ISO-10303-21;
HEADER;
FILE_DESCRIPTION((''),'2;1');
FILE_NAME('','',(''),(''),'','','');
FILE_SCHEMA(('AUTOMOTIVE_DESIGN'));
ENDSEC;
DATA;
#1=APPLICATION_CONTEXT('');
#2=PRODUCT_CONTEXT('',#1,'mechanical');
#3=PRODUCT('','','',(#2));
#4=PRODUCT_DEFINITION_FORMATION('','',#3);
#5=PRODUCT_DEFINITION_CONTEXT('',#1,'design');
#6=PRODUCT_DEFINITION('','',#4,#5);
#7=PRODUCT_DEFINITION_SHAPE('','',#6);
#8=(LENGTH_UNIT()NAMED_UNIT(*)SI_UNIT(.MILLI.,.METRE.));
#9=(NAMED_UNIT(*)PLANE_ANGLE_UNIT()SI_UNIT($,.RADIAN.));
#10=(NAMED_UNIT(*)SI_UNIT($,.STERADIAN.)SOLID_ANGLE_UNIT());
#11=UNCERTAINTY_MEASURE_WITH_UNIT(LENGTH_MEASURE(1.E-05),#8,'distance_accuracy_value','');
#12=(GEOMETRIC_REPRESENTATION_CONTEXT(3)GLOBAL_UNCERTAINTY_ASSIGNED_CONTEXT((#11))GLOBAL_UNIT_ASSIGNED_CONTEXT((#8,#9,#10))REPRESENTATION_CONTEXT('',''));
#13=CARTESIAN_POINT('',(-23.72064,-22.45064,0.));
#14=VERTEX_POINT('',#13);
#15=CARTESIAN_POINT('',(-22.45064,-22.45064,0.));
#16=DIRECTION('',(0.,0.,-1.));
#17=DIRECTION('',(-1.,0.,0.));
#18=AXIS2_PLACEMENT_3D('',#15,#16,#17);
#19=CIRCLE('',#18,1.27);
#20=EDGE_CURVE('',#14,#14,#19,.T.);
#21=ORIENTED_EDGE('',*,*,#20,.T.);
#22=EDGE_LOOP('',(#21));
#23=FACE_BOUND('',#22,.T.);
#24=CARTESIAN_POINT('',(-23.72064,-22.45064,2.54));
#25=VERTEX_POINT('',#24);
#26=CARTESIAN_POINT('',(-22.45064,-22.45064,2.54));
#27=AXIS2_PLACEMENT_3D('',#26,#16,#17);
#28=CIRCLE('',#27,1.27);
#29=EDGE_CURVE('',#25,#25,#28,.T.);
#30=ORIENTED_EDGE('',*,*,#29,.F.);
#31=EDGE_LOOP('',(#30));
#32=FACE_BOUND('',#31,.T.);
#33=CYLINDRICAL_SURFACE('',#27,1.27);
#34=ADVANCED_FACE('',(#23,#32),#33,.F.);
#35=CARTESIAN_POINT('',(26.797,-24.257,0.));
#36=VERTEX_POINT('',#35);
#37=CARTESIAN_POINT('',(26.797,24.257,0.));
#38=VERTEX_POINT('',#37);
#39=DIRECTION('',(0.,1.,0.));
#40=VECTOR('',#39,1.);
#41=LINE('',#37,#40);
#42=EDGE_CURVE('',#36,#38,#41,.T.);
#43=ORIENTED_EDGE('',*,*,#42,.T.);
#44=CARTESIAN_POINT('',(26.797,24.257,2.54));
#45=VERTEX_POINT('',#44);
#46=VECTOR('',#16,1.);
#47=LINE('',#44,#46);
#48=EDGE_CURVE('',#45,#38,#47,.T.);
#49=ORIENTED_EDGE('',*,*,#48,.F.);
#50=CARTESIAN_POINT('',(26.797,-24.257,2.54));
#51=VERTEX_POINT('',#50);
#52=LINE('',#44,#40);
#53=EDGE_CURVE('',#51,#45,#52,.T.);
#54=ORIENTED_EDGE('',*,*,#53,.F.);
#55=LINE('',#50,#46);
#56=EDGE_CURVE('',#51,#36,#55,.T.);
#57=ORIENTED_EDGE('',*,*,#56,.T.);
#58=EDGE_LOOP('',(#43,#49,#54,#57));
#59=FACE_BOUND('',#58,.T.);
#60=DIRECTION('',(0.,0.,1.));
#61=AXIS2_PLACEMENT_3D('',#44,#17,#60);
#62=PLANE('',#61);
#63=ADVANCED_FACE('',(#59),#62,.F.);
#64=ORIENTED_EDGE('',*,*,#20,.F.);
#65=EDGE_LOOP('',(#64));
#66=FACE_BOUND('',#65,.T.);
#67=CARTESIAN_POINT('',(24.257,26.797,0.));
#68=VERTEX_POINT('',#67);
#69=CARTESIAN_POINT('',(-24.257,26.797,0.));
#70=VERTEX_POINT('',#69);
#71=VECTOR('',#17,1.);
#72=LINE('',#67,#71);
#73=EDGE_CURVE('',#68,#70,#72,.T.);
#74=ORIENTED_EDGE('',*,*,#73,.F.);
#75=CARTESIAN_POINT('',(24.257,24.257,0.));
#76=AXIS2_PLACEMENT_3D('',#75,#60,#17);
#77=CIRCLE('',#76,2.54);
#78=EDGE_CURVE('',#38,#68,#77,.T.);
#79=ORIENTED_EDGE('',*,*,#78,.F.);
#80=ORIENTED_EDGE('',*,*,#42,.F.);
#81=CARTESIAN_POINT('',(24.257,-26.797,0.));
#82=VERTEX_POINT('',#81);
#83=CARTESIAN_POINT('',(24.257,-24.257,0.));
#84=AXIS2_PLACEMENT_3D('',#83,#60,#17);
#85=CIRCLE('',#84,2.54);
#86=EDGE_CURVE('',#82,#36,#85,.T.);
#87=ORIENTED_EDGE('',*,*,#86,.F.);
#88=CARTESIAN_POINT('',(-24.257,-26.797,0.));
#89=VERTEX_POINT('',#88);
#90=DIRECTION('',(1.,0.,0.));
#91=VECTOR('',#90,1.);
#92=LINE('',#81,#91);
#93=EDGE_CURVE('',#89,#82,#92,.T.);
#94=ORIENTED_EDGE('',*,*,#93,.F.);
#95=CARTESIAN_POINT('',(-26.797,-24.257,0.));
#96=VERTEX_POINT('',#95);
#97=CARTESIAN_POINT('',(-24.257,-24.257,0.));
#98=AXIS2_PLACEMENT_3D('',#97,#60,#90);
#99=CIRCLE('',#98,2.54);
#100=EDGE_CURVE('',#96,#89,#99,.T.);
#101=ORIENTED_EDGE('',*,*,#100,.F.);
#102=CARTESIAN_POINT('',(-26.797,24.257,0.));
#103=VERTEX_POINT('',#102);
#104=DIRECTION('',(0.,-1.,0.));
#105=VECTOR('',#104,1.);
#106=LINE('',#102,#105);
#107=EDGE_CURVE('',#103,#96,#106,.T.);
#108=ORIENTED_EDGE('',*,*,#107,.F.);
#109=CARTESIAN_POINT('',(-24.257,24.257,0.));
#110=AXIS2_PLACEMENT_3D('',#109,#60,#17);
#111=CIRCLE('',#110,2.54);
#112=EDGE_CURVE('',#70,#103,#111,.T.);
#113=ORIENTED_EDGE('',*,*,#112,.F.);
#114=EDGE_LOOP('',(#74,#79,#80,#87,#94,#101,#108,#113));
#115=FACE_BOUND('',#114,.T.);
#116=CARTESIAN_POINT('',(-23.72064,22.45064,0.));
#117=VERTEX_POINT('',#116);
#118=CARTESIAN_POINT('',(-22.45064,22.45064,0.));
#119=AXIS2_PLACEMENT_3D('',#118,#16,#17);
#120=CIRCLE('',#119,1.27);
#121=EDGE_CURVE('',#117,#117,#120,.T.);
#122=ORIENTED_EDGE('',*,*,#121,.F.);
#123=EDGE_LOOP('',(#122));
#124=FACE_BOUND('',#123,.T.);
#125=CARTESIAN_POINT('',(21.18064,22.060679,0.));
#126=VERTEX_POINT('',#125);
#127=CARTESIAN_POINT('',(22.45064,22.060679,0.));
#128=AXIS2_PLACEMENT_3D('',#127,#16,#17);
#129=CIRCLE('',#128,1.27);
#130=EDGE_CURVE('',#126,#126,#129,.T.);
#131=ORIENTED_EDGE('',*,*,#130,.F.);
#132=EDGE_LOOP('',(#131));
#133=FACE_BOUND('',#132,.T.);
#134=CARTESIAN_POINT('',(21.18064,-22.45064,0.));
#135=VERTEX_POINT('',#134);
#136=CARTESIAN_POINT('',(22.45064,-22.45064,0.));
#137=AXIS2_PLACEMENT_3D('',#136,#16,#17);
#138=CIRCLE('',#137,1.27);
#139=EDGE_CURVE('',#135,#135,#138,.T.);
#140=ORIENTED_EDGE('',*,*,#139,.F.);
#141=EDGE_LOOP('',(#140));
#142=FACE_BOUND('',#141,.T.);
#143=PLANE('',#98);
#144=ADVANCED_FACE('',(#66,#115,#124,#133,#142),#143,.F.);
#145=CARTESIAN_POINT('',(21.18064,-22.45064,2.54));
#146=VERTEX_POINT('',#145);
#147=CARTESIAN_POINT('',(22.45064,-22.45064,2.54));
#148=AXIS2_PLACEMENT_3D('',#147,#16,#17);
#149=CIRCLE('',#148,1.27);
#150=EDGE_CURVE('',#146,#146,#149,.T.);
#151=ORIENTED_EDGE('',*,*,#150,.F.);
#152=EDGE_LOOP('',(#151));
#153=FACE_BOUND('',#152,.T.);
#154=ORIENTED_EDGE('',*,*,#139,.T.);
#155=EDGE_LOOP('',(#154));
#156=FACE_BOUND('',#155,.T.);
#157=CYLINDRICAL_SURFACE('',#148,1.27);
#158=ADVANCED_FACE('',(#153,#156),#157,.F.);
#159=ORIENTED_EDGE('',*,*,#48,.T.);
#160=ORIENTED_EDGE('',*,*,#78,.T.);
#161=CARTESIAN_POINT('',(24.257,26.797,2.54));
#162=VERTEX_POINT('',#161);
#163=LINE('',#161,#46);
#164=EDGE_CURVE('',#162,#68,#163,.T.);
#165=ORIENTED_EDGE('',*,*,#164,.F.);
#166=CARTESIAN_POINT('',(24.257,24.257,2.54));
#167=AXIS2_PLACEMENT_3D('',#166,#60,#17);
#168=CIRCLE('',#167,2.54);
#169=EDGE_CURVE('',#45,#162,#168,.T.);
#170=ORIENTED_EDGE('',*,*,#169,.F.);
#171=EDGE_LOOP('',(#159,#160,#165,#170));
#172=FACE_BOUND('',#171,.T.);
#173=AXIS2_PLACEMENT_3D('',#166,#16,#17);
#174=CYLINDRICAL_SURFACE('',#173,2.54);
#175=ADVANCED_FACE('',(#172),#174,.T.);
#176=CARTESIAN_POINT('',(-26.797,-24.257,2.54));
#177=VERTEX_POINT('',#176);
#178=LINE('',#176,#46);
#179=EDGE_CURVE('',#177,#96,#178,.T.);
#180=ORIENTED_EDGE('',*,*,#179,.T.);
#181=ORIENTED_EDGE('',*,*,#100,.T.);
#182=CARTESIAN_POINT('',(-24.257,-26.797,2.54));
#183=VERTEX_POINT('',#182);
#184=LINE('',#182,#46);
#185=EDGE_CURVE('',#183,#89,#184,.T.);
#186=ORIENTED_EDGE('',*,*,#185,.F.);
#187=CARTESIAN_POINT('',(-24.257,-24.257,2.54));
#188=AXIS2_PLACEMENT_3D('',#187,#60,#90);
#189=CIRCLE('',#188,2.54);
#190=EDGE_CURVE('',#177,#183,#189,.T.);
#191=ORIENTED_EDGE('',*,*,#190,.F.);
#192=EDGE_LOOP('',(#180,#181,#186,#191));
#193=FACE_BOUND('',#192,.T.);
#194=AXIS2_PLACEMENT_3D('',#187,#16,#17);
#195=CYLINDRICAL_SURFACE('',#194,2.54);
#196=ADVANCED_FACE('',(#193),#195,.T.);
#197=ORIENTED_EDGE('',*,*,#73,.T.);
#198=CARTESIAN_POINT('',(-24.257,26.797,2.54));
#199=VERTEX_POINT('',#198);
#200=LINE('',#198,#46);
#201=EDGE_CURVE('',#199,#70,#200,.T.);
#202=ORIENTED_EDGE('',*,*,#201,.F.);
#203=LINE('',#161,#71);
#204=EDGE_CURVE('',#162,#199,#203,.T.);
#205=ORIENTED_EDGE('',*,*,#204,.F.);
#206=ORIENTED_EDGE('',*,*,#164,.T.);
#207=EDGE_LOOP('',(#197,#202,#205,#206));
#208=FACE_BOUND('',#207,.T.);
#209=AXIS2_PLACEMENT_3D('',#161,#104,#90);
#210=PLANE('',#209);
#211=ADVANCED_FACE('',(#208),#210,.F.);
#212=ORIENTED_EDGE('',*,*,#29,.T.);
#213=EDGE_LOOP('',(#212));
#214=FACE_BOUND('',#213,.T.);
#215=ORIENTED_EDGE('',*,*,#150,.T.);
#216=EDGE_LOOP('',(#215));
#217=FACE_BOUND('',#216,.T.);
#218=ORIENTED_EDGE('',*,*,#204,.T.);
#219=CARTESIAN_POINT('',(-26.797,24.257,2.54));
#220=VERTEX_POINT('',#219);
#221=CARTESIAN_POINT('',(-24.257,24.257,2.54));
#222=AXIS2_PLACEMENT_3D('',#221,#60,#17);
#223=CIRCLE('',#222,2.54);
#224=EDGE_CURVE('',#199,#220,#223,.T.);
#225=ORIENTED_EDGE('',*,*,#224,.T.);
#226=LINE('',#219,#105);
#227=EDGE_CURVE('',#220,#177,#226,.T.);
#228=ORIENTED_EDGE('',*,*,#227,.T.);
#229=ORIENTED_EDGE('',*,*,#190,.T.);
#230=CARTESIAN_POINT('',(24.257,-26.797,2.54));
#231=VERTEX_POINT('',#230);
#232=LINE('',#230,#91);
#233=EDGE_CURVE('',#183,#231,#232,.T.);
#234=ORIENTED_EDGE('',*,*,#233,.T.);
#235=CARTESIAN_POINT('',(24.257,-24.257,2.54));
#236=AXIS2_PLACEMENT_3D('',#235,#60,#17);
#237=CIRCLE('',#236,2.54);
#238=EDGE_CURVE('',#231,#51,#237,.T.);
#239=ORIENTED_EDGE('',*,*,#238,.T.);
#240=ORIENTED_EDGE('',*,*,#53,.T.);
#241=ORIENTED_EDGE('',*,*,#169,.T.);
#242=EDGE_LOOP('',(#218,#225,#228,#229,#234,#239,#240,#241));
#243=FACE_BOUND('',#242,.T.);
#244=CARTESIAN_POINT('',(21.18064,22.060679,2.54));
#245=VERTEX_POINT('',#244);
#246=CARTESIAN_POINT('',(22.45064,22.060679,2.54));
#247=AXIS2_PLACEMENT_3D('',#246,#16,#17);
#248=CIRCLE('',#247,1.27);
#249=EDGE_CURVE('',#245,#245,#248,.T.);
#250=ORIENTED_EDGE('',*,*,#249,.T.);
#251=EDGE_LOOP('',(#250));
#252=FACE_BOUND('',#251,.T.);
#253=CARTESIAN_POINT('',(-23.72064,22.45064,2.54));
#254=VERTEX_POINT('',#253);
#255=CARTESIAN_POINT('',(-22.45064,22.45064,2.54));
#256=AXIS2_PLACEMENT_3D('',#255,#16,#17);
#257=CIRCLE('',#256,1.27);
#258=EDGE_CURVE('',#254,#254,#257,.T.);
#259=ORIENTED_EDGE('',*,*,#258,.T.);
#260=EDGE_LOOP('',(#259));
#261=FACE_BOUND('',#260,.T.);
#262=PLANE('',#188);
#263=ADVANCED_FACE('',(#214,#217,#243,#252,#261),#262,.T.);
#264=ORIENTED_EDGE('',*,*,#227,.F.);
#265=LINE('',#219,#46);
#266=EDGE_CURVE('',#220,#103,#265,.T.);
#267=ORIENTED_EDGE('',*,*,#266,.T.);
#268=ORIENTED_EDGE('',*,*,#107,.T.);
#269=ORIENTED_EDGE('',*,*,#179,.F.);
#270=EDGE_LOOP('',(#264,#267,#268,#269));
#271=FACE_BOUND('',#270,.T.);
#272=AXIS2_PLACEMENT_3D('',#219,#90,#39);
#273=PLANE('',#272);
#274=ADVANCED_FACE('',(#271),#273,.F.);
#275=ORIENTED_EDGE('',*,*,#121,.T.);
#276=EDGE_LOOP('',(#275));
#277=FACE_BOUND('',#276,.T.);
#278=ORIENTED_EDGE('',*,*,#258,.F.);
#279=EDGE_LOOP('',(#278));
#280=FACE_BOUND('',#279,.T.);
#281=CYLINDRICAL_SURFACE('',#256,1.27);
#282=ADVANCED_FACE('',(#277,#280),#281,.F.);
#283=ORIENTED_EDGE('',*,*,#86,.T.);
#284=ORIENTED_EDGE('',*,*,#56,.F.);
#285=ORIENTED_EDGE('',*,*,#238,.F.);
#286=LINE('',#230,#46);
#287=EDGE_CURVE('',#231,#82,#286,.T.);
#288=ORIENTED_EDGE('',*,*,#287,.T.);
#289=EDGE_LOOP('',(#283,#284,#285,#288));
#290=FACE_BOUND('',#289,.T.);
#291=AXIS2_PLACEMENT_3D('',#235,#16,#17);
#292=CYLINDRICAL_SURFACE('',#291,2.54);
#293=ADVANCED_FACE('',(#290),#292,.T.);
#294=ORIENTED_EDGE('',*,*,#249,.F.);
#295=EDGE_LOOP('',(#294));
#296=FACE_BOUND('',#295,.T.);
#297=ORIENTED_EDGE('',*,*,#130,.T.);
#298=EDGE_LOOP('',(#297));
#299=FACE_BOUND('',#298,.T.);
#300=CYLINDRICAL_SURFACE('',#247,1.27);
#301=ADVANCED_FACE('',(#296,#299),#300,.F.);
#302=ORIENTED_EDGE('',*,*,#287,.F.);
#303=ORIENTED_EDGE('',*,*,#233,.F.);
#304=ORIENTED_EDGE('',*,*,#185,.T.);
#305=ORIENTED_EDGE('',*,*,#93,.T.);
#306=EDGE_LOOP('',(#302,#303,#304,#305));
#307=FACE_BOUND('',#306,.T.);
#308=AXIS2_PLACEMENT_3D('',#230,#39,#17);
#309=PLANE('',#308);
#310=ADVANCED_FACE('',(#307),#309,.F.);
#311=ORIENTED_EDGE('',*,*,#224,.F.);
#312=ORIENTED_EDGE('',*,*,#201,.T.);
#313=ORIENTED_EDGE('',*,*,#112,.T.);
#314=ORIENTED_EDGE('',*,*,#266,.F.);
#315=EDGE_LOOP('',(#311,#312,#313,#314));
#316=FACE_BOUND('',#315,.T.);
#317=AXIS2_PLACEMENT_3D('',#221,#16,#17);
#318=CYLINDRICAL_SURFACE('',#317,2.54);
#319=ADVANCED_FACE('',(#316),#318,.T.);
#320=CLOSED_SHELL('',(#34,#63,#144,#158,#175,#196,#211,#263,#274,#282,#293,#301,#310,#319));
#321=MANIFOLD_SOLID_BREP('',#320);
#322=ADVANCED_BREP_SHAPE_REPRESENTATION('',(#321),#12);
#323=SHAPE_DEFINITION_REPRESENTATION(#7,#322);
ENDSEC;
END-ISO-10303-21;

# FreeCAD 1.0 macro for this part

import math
import FreeCAD as App
import Part
import Sketcher
Q = App.Units.Quantity

doc = App.newDocument("Part")
body = doc.addObject("PartDesign::Body", "Body")

# Sketch on XY plane
sketch1 = body.newObject("Sketcher::SketchObject", "Sketch")
sketch1.AttachmentSupport = (doc.getObject("XY_Plane"), [""])
sketch1.MapMode = "FlatFace"
sketch1.addGeometry([
    Part.LineSegment(App.Vector(24.3, 26.8, 0), App.Vector(-24.3, 26.8, 0)),  # 0
    Part.ArcOfCircle(Part.Circle(App.Vector(-24.3, 24.3, 0), App.Vector(0, 0, 1), 2.5), math.radians(90), math.radians(180)),  # 1
    Part.LineSegment(App.Vector(-26.8, 24.3, 0), App.Vector(-26.8, -24.3, 0)),  # 2
    Part.ArcOfCircle(Part.Circle(App.Vector(-24.3, -24.3, 0), App.Vector(0, 0, 1), 2.5), math.radians(-180), math.radians(-90)),  # 3
    Part.LineSegment(App.Vector(-24.3, -26.8, 0), App.Vector(24.3, -26.8, 0)),  # 4
    Part.ArcOfCircle(Part.Circle(App.Vector(24.3, -24.3, 0), App.Vector(0, 0, 1), 2.5), math.radians(-90), math.radians(0)),  # 5
    Part.LineSegment(App.Vector(26.8, -24.3, 0), App.Vector(26.8, 24.3, 0)),  # 6
    Part.ArcOfCircle(Part.Circle(App.Vector(24.3, 24.3, 0), App.Vector(0, 0, 1), 2.5), math.radians(0), math.radians(90)),  # 7
], False)
sketch1.addConstraint([
    Sketcher.Constraint("Tangent", 0, 2, 1, 1),
    Sketcher.Constraint("Tangent", 1, 2, 2, 1),
    Sketcher.Constraint("Tangent", 2, 2, 3, 1),
    Sketcher.Constraint("Tangent", 3, 2, 4, 1),
    Sketcher.Constraint("Tangent", 4, 2, 5, 1),
    Sketcher.Constraint("Tangent", 5, 2, 6, 1),
    Sketcher.Constraint("Tangent", 6, 2, 7, 1),
    Sketcher.Constraint("Tangent", 7, 2, 0, 1),
    Sketcher.Constraint("Horizontal", 0),
    Sketcher.Constraint("Vertical", 2),
    Sketcher.Constraint("Horizontal", 4),
    Sketcher.Constraint("Vertical", 6),
    Sketcher.Constraint("Equal", 1, 3),
    Sketcher.Constraint("Equal", 3, 5),
    Sketcher.Constraint("Equal", 5, 7),
    Sketcher.Constraint("Symmetric", 1, 3, 5, 3, -1, 1),
    Sketcher.Constraint("Equal", 4, 2),
    Sketcher.Constraint("Radius", 1, Q("0.1 in")),
    Sketcher.Constraint("DistanceX", 0, 2, 0, 1, Q("1.91 in")),
])
pad1 = body.newObject("PartDesign::Pad", "Pad")
pad1.Profile = sketch1
pad1.Length = Q("0.1 in")

# Sketch on XY plane
sketch2 = body.newObject("Sketcher::SketchObject", "Sketch001")
sketch2.AttachmentSupport = (doc.getObject("XY_Plane"), [""])
sketch2.MapMode = "FlatFace"
sketch2.addGeometry([
    Part.Circle(App.Vector(-22.5, -22.5, 0), App.Vector(0, 0, 1), 1.3),
    Part.Circle(App.Vector(22.5, -22.5, 0), App.Vector(0, 0, 1), 1.3),
    Part.Circle(App.Vector(22.5, 22.1, 0), App.Vector(0, 0, 1), 1.3),
    Part.Circle(App.Vector(-22.5, 22.5, 0), App.Vector(0, 0, 1), 1.3),
], False)
sketch2.addConstraint([
    Sketcher.Constraint("Equal", 0, 1),
    Sketcher.Constraint("Equal", 1, 2),
    Sketcher.Constraint("Equal", 2, 3),
    Sketcher.Constraint("Symmetric", 1, 3, 3, 3, -1, 1),
    Sketcher.Constraint("Symmetric", 0, 3, 1, 3, -2),
    Sketcher.Constraint("Vertical", 1, 3, 2, 3),
    Sketcher.Constraint("Diameter", 0, Q("0.1 in")),
    Sketcher.Constraint("DistanceX", 0, 3, -1, 1, 22.45064),
    Sketcher.Constraint("DistanceY", 0, 3, -1, 1, 22.45064),
    Sketcher.Constraint("DistanceY", -1, 1, 2, 3, 22.060679),
])
pocket1 = body.newObject("PartDesign::Pocket", "Pocket")
pocket1.Profile = sketch2
pocket1.Type = "ThroughAll"
pocket1.Reversed = True

doc.recompute()
